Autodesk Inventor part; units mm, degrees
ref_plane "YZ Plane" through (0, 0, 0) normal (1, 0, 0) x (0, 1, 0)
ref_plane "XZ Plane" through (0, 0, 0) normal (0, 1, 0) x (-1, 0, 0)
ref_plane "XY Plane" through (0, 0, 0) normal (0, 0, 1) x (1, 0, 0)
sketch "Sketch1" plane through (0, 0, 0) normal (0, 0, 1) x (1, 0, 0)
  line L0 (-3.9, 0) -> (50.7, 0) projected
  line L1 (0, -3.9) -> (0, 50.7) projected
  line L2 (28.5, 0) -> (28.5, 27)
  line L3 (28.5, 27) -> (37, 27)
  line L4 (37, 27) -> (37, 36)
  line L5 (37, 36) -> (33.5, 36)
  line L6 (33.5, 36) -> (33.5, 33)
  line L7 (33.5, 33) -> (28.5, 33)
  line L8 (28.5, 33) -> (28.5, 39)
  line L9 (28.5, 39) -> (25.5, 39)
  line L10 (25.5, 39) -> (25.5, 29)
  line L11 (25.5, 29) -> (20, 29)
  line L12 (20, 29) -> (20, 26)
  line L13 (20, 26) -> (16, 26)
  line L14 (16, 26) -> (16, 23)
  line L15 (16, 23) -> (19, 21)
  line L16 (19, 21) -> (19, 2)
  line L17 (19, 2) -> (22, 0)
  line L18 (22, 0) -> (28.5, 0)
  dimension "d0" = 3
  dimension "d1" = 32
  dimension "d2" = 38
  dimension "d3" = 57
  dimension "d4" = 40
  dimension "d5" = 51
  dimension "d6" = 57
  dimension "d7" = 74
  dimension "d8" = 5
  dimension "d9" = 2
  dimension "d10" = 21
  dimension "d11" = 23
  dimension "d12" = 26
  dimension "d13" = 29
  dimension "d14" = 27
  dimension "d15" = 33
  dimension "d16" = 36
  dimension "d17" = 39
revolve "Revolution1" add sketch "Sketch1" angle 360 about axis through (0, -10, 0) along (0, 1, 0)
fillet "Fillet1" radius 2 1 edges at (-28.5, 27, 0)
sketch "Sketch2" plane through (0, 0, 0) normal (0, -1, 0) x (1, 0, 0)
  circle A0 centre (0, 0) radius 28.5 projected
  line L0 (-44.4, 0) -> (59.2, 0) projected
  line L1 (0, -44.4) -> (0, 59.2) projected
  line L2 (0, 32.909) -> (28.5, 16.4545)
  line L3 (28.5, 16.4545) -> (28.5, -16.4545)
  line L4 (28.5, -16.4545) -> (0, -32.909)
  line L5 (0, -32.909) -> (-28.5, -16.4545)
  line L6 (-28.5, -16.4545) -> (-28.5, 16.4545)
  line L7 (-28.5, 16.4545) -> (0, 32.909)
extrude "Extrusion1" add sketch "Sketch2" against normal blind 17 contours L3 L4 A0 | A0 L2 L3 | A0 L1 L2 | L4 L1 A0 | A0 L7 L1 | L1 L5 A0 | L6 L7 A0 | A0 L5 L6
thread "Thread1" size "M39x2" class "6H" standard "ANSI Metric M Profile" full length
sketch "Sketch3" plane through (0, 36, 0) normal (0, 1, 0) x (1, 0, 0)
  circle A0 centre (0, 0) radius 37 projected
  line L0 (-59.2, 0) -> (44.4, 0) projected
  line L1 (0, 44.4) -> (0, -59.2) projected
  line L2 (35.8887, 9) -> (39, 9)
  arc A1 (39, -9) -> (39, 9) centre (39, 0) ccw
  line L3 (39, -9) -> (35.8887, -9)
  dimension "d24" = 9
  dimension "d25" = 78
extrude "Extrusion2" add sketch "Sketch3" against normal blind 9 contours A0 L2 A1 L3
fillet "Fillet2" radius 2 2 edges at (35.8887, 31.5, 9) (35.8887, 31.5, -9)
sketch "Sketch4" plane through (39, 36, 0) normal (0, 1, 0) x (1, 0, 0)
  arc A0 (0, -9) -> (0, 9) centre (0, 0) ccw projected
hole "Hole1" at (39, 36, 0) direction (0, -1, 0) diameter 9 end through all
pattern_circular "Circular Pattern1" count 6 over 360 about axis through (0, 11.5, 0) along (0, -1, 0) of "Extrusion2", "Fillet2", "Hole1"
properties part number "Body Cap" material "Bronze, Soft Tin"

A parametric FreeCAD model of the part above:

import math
import FreeCAD as App
import Part
import Sketcher

V = App.Vector


def edges_at(feature, points):
    """Names of the edges that pass closest to the given points."""
    edges = feature.Shape.Edges
    near = lambda p: min(range(len(edges)), key=lambda i: edges[i].distToShape(Part.Vertex(*p))[0])
    return sorted({f"Edge{near(p) + 1}" for p in points})

doc = App.newDocument("Part")
body = doc.addObject("PartDesign::Body", "Body")

sketch1 = doc.addObject("Sketcher::SketchObject", "Sketch")
body.addObject(sketch1)
sketch1.AttachmentSupport = (doc.XY_Plane, [""])
sketch1.MapMode = "FlatFace"
sketch1.addGeometry([
    Part.LineSegment(V(19, 2, 0), V(22, 0, 0)),
    Part.LineSegment(V(22, 0, 0), V(28.5, 0, 0)),
    Part.LineSegment(V(28.5, 0, 0), V(28.5, 27, 0)),
    Part.LineSegment(V(28.5, 27, 0), V(37, 27, 0)),
    Part.LineSegment(V(37, 27, 0), V(37, 36, 0)),
    Part.LineSegment(V(37, 36, 0), V(33.5, 36, 0)),
    Part.LineSegment(V(33.5, 36, 0), V(33.5, 33, 0)),
    Part.LineSegment(V(33.5, 33, 0), V(28.5, 33, 0)),
    Part.LineSegment(V(28.5, 33, 0), V(28.5, 39, 0)),
    Part.LineSegment(V(28.5, 39, 0), V(25.5, 39, 0)),
    Part.LineSegment(V(25.5, 39, 0), V(25.5, 29, 0)),
    Part.LineSegment(V(25.5, 29, 0), V(20, 29, 0)),
    Part.LineSegment(V(20, 29, 0), V(20, 26, 0)),
    Part.LineSegment(V(20, 26, 0), V(16, 26, 0)),
    Part.LineSegment(V(16, 26, 0), V(16, 23, 0)),
    Part.LineSegment(V(16, 23, 0), V(19, 21, 0)),
    Part.LineSegment(V(19, 21, 0), V(19, 2, 0)),
], False)
sketch1.addConstraint([
    Sketcher.Constraint("Coincident", 0, 2, 1, 1),
    Sketcher.Constraint("Coincident", 1, 2, 2, 1),
    Sketcher.Constraint("Coincident", 2, 2, 3, 1),
    Sketcher.Constraint("Coincident", 3, 2, 4, 1),
    Sketcher.Constraint("Coincident", 4, 2, 5, 1),
    Sketcher.Constraint("Coincident", 5, 2, 6, 1),
    Sketcher.Constraint("Coincident", 6, 2, 7, 1),
    Sketcher.Constraint("Coincident", 7, 2, 8, 1),
    Sketcher.Constraint("Coincident", 8, 2, 9, 1),
    Sketcher.Constraint("Coincident", 9, 2, 10, 1),
    Sketcher.Constraint("Coincident", 10, 2, 11, 1),
    Sketcher.Constraint("Coincident", 11, 2, 12, 1),
    Sketcher.Constraint("Coincident", 12, 2, 13, 1),
    Sketcher.Constraint("Coincident", 13, 2, 14, 1),
    Sketcher.Constraint("Coincident", 14, 2, 15, 1),
    Sketcher.Constraint("Coincident", 15, 2, 16, 1),
    Sketcher.Constraint("Coincident", 16, 2, 0, 1),
    Sketcher.Constraint("Horizontal", 1),
    Sketcher.Constraint("Vertical", 2),
    Sketcher.Constraint("Horizontal", 3),
    Sketcher.Constraint("Vertical", 4),
    Sketcher.Constraint("Horizontal", 5),
    Sketcher.Constraint("Vertical", 6),
    Sketcher.Constraint("Horizontal", 7),
    Sketcher.Constraint("Vertical", 8),
    Sketcher.Constraint("Horizontal", 9),
    Sketcher.Constraint("Vertical", 10),
    Sketcher.Constraint("Horizontal", 11),
    Sketcher.Constraint("Vertical", 12),
    Sketcher.Constraint("Horizontal", 13),
    Sketcher.Constraint("Vertical", 14),
    Sketcher.Constraint("Vertical", 16),
    Sketcher.Constraint("PointOnObject", 0, 2, -1),
    Sketcher.Constraint("Parallel", 0, 15),
    Sketcher.Constraint("Vertical", 2, 2, 7, 2),
    Sketcher.Constraint("Equal", 9, 6),
    Sketcher.Constraint("Equal", 6, 12),
    Sketcher.Constraint("Equal", 12, 14),
    Sketcher.Constraint("Equal", 0, 15),
    Sketcher.Constraint("DistanceX", 7, 2, 7, 1, 5.0),
    Sketcher.Constraint("DistanceX", 9, 2, 9, 1, 3.0),
    Sketcher.Constraint("DistanceY", 2, 1, 2, 2, 27.0),
    Sketcher.Constraint("DistanceY", -1, 1, 4, 2, 36.0),
    Sketcher.Constraint("DistanceY", -1, 1, 8, 2, 39.0),
    Sketcher.Constraint("DistanceY", -1, 1, 10, 2, 29.0),
    Sketcher.Constraint("DistanceY", -1, 1, 15, 2, 21.0),
    Sketcher.Constraint("DistanceX", 14, 2, 15, 2, 3.0),
    Sketcher.Constraint("DistanceX", 13, 2, 13, 1, 4.0),
    Sketcher.Constraint("DistanceX", 1, 1, 1, 2, 6.5),
    Sketcher.Constraint("DistanceX", 3, 1, 3, 2, 8.5),
    Sketcher.Constraint("DistanceX", -1, 1, 0, 2, 22.0),
])
revolution = doc.addObject("PartDesign::Revolution", "Revolution")
body.addObject(revolution)
revolution.Profile = sketch1
revolution.ReferenceAxis = (sketch1, ["V_Axis"])
revolution.Angle = 360
doc.recompute()

fillet = doc.addObject("PartDesign::Fillet", "Fillet")
body.addObject(fillet)
fillet.Base = (revolution, edges_at(revolution, [(-28.5, 27, 0)]))
fillet.Radius = 2

sketch2 = doc.addObject("Sketcher::SketchObject", "Sketch001")
body.addObject(sketch2)
sketch2.AttachmentSupport = (doc.XZ_Plane, [""])
sketch2.MapMode = "FlatFace"
sketch2.addGeometry([
    Part.LineSegment(V(28.5, -16.4545, 0), V(28.5, 0, 0)),
    Part.ArcOfCircle(Part.Circle(V(0, 0, 0), V(0, 0, 1), 28.5), math.radians(-59.999974), math.radians(0)),
    Part.LineSegment(V(14.250023, -24.681737, 0), V(28.5, -16.4545, 0)),
    Part.ArcOfCircle(Part.Circle(V(0, 0, 0), V(0, 0, 1), 28.5), math.radians(0), math.radians(59.999974)),
    Part.LineSegment(V(28.5, 0, 0), V(28.5, 16.4545, 0)),
    Part.LineSegment(V(28.5, 16.4545, 0), V(14.250022, 24.681737, 0)),
    Part.LineSegment(V(14.250022, 24.681737, 0), V(0, 32.909, 0)),
    Part.LineSegment(V(0, 32.909, 0), V(-14.250022, 24.681737, 0)),
    Part.ArcOfCircle(Part.Circle(V(0, 0, 0), V(0, 0, 1), 28.5), math.radians(59.999974), math.radians(120.000026)),
    Part.LineSegment(V(0, -32.909, 0), V(14.250023, -24.681737, 0)),
    Part.ArcOfCircle(Part.Circle(V(0, 0, 0), V(0, 0, 1), 28.5), math.radians(-120.000027), math.radians(-59.999974)),
    Part.LineSegment(V(-14.250023, -24.681737, 0), V(0, -32.909, 0)),
    Part.LineSegment(V(-28.5, 16.4545, 0), V(-28.5, 0, 0)),
    Part.ArcOfCircle(Part.Circle(V(0, 0, 0), V(0, 0, 1), 28.5), math.radians(120.000026), math.radians(180)),
    Part.LineSegment(V(-14.250022, 24.681737, 0), V(-28.5, 16.4545, 0)),
    Part.ArcOfCircle(Part.Circle(V(0, 0, 0), V(0, 0, 1), 28.5), math.radians(180), math.radians(239.999973)),
    Part.LineSegment(V(-28.5, 0, 0), V(-28.5, -16.4545, 0)),
    Part.LineSegment(V(-28.5, -16.4545, 0), V(-14.250023, -24.681737, 0)),
], False)
sketch2.addConstraint([
    Sketcher.Constraint("Tangent", 0, 2, 1, 2),
    Sketcher.Constraint("Tangent", 1, 1, 2, 1),
    Sketcher.Constraint("Coincident", 2, 2, 0, 1),
    Sketcher.Constraint("Tangent", 3, 1, 4, 1),
    Sketcher.Constraint("Coincident", 4, 2, 5, 1),
    Sketcher.Constraint("Tangent", 5, 2, 3, 2),
    Sketcher.Constraint("Coincident", 6, 2, 7, 1),
    Sketcher.Constraint("Tangent", 7, 2, 8, 2),
    Sketcher.Constraint("Tangent", 8, 1, 6, 1),
    Sketcher.Constraint("Tangent", 9, 2, 10, 2),
    Sketcher.Constraint("Tangent", 10, 1, 11, 1),
    Sketcher.Constraint("Coincident", 11, 2, 9, 1),
    Sketcher.Constraint("Tangent", 12, 2, 13, 2),
    Sketcher.Constraint("Tangent", 13, 1, 14, 1),
    Sketcher.Constraint("Coincident", 14, 2, 12, 1),
    Sketcher.Constraint("Tangent", 15, 1, 16, 1),
    Sketcher.Constraint("Coincident", 16, 2, 17, 1),
    Sketcher.Constraint("Tangent", 17, 2, 15, 2),
    Sketcher.Constraint("Vertical", 0),
    Sketcher.Constraint("Vertical", 4),
    Sketcher.Constraint("Vertical", 12),
    Sketcher.Constraint("Vertical", 16),
    Sketcher.Constraint("Coincident", 1, 3, -1, 1),
    Sketcher.Constraint("Coincident", 3, 3, -1, 1),
    Sketcher.Constraint("Coincident", 8, 3, -1, 1),
    Sketcher.Constraint("Coincident", 10, 3, -1, 1),
    Sketcher.Constraint("Coincident", 13, 3, -1, 1),
    Sketcher.Constraint("Coincident", 15, 3, -1, 1),
    Sketcher.Constraint("Coincident", 8, 1, 5, 2),
    Sketcher.Constraint("Coincident", 9, 2, 1, 1),
    Sketcher.Constraint("Coincident", 13, 1, 7, 2),
    Sketcher.Constraint("Coincident", 17, 2, 10, 1),
    Sketcher.Constraint("Equal", 1, 3),
    Sketcher.Constraint("Symmetric", 6, 2, 11, 2, -1, 1),
    Sketcher.Constraint("PointOnObject", 6, 2, -2),
    Sketcher.Constraint("Equal", 5, 6),
    Sketcher.Constraint("Radius", 1, 28.5),
])
pad1 = doc.addObject("PartDesign::Pad", "Pad")
body.addObject(pad1)
pad1.Profile = sketch2
pad1.Length = 17
pad1.Reversed = True

sketch3 = doc.addObject("Sketcher::SketchObject", "Sketch002")
body.addObject(sketch3)
sketch3.AttachmentSupport = (doc.XZ_Plane, [""])
sketch3.MapMode = "FlatFace"
sketch3.AttachmentOffset = App.Placement(V(0, 0, -36), App.Rotation())
sketch3.addGeometry([
    Part.ArcOfCircle(Part.Circle(V(0, 0, 0), V(0, 0, 1), 37), math.radians(-14.078045), math.radians(14.078045)),
    Part.LineSegment(V(35.8887, 9, 0), V(39, 9, 0)),
    Part.ArcOfCircle(Part.Circle(V(39, 0, 0), V(0, 0, 1), 9), math.radians(-90), math.radians(90)),
    Part.LineSegment(V(39, -9, 0), V(35.8887, -9, 0)),
], False)
sketch3.addConstraint([
    Sketcher.Constraint("Coincident", 0, 2, 1, 1),
    Sketcher.Constraint("Tangent", 1, 2, 2, 2),
    Sketcher.Constraint("Tangent", 2, 1, 3, 1),
    Sketcher.Constraint("Coincident", 3, 2, 0, 1),
    Sketcher.Constraint("Horizontal", 1),
    Sketcher.Constraint("Horizontal", 3),
    Sketcher.Constraint("Coincident", 0, 3, -1, 1),
    Sketcher.Constraint("PointOnObject", 2, 3, -1),
    Sketcher.Constraint("Radius", 2, 9.0),
    Sketcher.Constraint("Radius", 0, 37.0),
    Sketcher.Constraint("DistanceX", -1, 1, 2, 3, 39.0),
])
pad2 = doc.addObject("PartDesign::Pad", "Pad001")
body.addObject(pad2)
pad2.Profile = sketch3
pad2.Length = 9
doc.recompute()

fillet2 = doc.addObject("PartDesign::Fillet", "Fillet001")
body.addObject(fillet2)
fillet2.Base = (pad2, edges_at(pad2, [(35.889, 31.5, 9), (35.889, 31.5, -9)]))
fillet2.Radius = 2

sketch4 = doc.addObject("Sketcher::SketchObject", "Sketch003")
body.addObject(sketch4)
sketch4.AttachmentSupport = (doc.XZ_Plane, [""])
sketch4.MapMode = "FlatFace"
sketch4.AttachmentOffset = App.Placement(V(0, 0, -36), App.Rotation())
sketch4.addGeometry(Part.Circle(V(39, 0, 0), V(0, 0, 1), 4.5), False)
sketch4.addConstraint([
    Sketcher.Constraint("PointOnObject", 0, 3, -1),
    Sketcher.Constraint("Diameter", 0, 9.0),
    Sketcher.Constraint("DistanceX", -1, 1, 0, 3, 39.0),
])
doc.recompute()
hole = doc.addObject("PartDesign::Hole", "Hole")
body.addObject(hole)
hole.Profile = sketch4
hole.ThreadType = "None"
hole.Diameter = 9
hole.DepthType = "ThroughAll"
hole.Reversed = True
doc.recompute()

polarpattern = doc.addObject("PartDesign::PolarPattern", "PolarPattern")
body.addObject(polarpattern)
polarpattern.Originals = [pad2, fillet2, hole]
polarpattern.Axis = (doc.Y_Axis, [""])
polarpattern.Angle = 360
polarpattern.Occurrences = 6
body.Tip = polarpattern

doc.recompute()
